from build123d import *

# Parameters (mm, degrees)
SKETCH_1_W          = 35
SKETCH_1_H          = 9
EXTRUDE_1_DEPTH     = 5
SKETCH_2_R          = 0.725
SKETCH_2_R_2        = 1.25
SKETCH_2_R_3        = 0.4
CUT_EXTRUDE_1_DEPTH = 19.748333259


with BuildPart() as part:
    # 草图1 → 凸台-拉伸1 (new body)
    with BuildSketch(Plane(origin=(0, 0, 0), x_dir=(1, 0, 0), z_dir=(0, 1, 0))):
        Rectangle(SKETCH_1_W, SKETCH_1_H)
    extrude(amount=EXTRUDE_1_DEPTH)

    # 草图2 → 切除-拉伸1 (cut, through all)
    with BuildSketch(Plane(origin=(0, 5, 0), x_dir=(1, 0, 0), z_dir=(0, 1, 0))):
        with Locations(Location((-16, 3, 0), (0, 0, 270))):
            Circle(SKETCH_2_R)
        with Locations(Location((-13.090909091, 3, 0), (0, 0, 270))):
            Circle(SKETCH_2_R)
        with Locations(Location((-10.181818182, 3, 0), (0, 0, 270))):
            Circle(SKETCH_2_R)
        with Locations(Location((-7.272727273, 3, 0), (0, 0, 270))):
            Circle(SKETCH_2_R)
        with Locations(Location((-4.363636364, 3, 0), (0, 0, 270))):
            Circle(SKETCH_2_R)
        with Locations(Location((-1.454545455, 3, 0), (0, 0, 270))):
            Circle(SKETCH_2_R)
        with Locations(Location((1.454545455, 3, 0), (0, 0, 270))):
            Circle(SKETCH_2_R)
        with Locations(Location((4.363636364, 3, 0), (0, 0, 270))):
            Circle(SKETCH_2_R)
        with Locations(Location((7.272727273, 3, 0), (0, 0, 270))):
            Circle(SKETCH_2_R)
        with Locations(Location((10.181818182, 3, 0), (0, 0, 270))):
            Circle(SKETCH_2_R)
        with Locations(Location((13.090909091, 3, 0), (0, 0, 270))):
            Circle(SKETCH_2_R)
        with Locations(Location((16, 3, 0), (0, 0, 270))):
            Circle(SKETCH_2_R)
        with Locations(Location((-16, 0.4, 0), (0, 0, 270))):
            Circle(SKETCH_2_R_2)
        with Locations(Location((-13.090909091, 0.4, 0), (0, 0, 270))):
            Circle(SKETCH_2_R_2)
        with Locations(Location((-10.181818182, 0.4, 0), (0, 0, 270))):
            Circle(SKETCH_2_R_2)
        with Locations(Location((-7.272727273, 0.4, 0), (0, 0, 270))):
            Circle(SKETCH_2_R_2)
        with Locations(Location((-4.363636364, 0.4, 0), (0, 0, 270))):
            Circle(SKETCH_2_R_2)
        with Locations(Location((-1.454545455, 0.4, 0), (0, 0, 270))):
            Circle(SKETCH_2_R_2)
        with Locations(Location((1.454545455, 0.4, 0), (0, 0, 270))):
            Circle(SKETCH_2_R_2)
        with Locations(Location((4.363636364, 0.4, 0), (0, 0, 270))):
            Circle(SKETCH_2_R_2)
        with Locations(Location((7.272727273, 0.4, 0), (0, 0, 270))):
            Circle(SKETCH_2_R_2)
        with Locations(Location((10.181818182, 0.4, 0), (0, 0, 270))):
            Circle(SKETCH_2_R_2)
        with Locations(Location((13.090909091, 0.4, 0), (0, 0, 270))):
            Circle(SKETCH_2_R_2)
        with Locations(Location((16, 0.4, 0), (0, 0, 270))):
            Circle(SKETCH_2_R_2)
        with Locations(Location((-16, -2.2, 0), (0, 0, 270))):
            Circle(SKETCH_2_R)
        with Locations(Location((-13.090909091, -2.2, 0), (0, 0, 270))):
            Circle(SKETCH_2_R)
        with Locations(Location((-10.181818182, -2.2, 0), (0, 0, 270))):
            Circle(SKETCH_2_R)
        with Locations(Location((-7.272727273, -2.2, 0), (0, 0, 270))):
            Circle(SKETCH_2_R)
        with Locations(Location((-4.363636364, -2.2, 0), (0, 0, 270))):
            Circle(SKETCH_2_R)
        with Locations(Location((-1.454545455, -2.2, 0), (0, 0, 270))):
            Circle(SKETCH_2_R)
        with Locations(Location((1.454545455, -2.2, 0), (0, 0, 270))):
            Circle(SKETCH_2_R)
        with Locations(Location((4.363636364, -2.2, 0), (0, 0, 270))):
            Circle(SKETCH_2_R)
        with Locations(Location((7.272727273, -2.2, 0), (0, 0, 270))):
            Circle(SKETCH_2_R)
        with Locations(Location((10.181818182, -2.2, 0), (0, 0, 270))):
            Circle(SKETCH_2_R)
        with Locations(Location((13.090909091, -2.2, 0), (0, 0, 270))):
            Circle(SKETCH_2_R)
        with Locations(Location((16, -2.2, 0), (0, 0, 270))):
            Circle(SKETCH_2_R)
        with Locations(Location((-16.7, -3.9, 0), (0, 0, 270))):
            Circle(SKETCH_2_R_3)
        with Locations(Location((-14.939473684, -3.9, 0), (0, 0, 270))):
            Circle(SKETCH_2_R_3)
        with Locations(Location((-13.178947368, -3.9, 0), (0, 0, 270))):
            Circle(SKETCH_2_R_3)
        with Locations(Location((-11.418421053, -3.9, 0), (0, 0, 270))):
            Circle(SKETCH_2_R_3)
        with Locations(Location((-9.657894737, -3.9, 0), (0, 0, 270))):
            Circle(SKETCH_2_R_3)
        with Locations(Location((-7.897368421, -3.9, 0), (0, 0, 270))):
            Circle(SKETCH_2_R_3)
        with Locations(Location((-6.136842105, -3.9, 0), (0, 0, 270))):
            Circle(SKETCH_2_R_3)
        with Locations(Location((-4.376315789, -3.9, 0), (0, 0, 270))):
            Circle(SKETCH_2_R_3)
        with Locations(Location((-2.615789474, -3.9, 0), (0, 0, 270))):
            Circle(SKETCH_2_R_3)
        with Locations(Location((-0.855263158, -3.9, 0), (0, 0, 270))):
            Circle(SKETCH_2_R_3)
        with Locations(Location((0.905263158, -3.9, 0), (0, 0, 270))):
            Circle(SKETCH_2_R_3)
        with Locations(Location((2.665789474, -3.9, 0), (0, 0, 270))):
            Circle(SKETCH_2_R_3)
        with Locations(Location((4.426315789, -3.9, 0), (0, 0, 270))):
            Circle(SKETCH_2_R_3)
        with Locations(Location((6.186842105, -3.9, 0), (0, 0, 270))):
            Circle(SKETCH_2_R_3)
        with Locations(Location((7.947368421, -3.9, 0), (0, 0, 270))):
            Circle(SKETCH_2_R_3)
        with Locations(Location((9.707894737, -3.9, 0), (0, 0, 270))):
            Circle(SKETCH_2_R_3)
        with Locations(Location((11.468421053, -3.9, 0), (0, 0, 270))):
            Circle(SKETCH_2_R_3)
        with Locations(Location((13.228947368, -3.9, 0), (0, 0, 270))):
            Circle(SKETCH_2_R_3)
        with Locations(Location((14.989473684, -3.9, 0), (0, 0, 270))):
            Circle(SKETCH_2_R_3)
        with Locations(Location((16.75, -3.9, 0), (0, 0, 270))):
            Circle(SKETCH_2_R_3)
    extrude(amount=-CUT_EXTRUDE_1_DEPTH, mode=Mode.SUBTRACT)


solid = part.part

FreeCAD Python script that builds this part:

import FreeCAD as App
import Part
import Sketcher


def add_polygon(sketch, points):
    """Adds a closed chain of lines whose ends are joined by coincident constraints."""
    first, n = sketch.GeometryCount, len(points)
    for a, b in zip(points, points[1:] + points[:1]):
        sketch.addGeometry(Part.LineSegment(App.Vector(*a, 0), App.Vector(*b, 0)), False)
    for i in range(n):
        sketch.addConstraint(Sketcher.Constraint("Coincident", first + i, 2, first + (i + 1) % n, 1))

doc = App.newDocument("Part")
body = doc.addObject("PartDesign::Body", "Body")

# Sketch on XZ plane
sketch1 = body.newObject("Sketcher::SketchObject", "Sketch")
sketch1.AttachmentSupport = (doc.getObject("XZ_Plane"), [""])
sketch1.MapMode = "FlatFace"
add_polygon(sketch1, [(-18, -4), (-18, 4), (18, 4), (18, -4)])  # lines 0-3
sketch1.addConstraint([
    Sketcher.Constraint("Vertical", 0),
    Sketcher.Constraint("Horizontal", 1),
    Sketcher.Constraint("Vertical", 2),
    Sketcher.Constraint("Horizontal", 3),
    Sketcher.Constraint("Symmetric", 0, 2, 2, 2, -1, 1),
    Sketcher.Constraint("DistanceX", 1, 1, 1, 2, 35.0),
    Sketcher.Constraint("DistanceY", 0, 1, 0, 2, 9.0),
])
pad1 = body.newObject("PartDesign::Pad", "Pad")
pad1.Profile = sketch1
pad1.Length = 5
pad1.Reversed = True

# Sketch on XZ plane
sketch2 = body.newObject("Sketcher::SketchObject", "Sketch001")
sketch2.AttachmentSupport = (doc.getObject("XZ_Plane"), [""])
sketch2.MapMode = "FlatFace"
sketch2.AttachmentOffset = App.Placement(App.Vector(0, 0, -5), App.Rotation())
sketch2.addGeometry([
    Part.Circle(App.Vector(-16, -3, 0), App.Vector(0, 0, 1), 0.72),  # 0
    Part.Circle(App.Vector(-13.09, -3, 0), App.Vector(0, 0, 1), 0.72),  # 1
    Part.Circle(App.Vector(-10.18, -3, 0), App.Vector(0, 0, 1), 0.72),  # 2
    Part.Circle(App.Vector(-7.27, -3, 0), App.Vector(0, 0, 1), 0.72),  # 3
    Part.Circle(App.Vector(-4.36, -3, 0), App.Vector(0, 0, 1), 0.72),  # 4
    Part.Circle(App.Vector(-1.45, -3, 0), App.Vector(0, 0, 1), 0.72),  # 5
    Part.Circle(App.Vector(1.45, -3, 0), App.Vector(0, 0, 1), 0.72),  # 6
    Part.Circle(App.Vector(4.36, -3, 0), App.Vector(0, 0, 1), 0.72),  # 7
    Part.Circle(App.Vector(7.27, -3, 0), App.Vector(0, 0, 1), 0.72),  # 8
    Part.Circle(App.Vector(10.18, -3, 0), App.Vector(0, 0, 1), 0.72),  # 9
    Part.Circle(App.Vector(13.09, -3, 0), App.Vector(0, 0, 1), 0.72),  # 10
    Part.Circle(App.Vector(16, -3, 0), App.Vector(0, 0, 1), 0.72),  # 11
    Part.Circle(App.Vector(-16, -0.4, 0), App.Vector(0, 0, 1), 1.25),  # 12
    Part.Circle(App.Vector(-13.09, -0.4, 0), App.Vector(0, 0, 1), 1.25),  # 13
    Part.Circle(App.Vector(-10.18, -0.4, 0), App.Vector(0, 0, 1), 1.25),  # 14
    Part.Circle(App.Vector(-7.27, -0.4, 0), App.Vector(0, 0, 1), 1.25),  # 15
    Part.Circle(App.Vector(-4.36, -0.4, 0), App.Vector(0, 0, 1), 1.25),  # 16
    Part.Circle(App.Vector(-1.45, -0.4, 0), App.Vector(0, 0, 1), 1.25),  # 17
    Part.Circle(App.Vector(1.45, -0.4, 0), App.Vector(0, 0, 1), 1.25),  # 18
    Part.Circle(App.Vector(4.36, -0.4, 0), App.Vector(0, 0, 1), 1.25),  # 19
    Part.Circle(App.Vector(7.27, -0.4, 0), App.Vector(0, 0, 1), 1.25),  # 20
    Part.Circle(App.Vector(10.18, -0.4, 0), App.Vector(0, 0, 1), 1.25),  # 21
    Part.Circle(App.Vector(13.09, -0.4, 0), App.Vector(0, 0, 1), 1.25),  # 22
    Part.Circle(App.Vector(16, -0.4, 0), App.Vector(0, 0, 1), 1.25),  # 23
    Part.Circle(App.Vector(-16, 2.2, 0), App.Vector(0, 0, 1), 0.72),  # 24
    Part.Circle(App.Vector(-13.09, 2.2, 0), App.Vector(0, 0, 1), 0.72),  # 25
    Part.Circle(App.Vector(-10.18, 2.2, 0), App.Vector(0, 0, 1), 0.72),  # 26
    Part.Circle(App.Vector(-7.27, 2.2, 0), App.Vector(0, 0, 1), 0.72),  # 27
    Part.Circle(App.Vector(-4.36, 2.2, 0), App.Vector(0, 0, 1), 0.72),  # 28
    Part.Circle(App.Vector(-1.45, 2.2, 0), App.Vector(0, 0, 1), 0.72),  # 29
    Part.Circle(App.Vector(1.45, 2.2, 0), App.Vector(0, 0, 1), 0.72),  # 30
    Part.Circle(App.Vector(4.36, 2.2, 0), App.Vector(0, 0, 1), 0.72),  # 31
    Part.Circle(App.Vector(7.27, 2.2, 0), App.Vector(0, 0, 1), 0.72),  # 32
    Part.Circle(App.Vector(10.18, 2.2, 0), App.Vector(0, 0, 1), 0.72),  # 33
    Part.Circle(App.Vector(13.09, 2.2, 0), App.Vector(0, 0, 1), 0.72),  # 34
    Part.Circle(App.Vector(16, 2.2, 0), App.Vector(0, 0, 1), 0.72),  # 35
    Part.Circle(App.Vector(-16.7, 3.9, 0), App.Vector(0, 0, 1), 0.4),  # 36
    Part.Circle(App.Vector(-14.94, 3.9, 0), App.Vector(0, 0, 1), 0.4),  # 37
    Part.Circle(App.Vector(-13.18, 3.9, 0), App.Vector(0, 0, 1), 0.4),  # 38
    Part.Circle(App.Vector(-11.42, 3.9, 0), App.Vector(0, 0, 1), 0.4),  # 39
    Part.Circle(App.Vector(-9.66, 3.9, 0), App.Vector(0, 0, 1), 0.4),  # 40
    Part.Circle(App.Vector(-7.9, 3.9, 0), App.Vector(0, 0, 1), 0.4),  # 41
    Part.Circle(App.Vector(-6.14, 3.9, 0), App.Vector(0, 0, 1), 0.4),  # 42
    Part.Circle(App.Vector(-4.38, 3.9, 0), App.Vector(0, 0, 1), 0.4),  # 43
    Part.Circle(App.Vector(-2.62, 3.9, 0), App.Vector(0, 0, 1), 0.4),  # 44
    Part.Circle(App.Vector(-0.86, 3.9, 0), App.Vector(0, 0, 1), 0.4),  # 45
    Part.Circle(App.Vector(0.91, 3.9, 0), App.Vector(0, 0, 1), 0.4),  # 46
    Part.Circle(App.Vector(2.67, 3.9, 0), App.Vector(0, 0, 1), 0.4),  # 47
    Part.Circle(App.Vector(4.43, 3.9, 0), App.Vector(0, 0, 1), 0.4),  # 48
    Part.Circle(App.Vector(6.19, 3.9, 0), App.Vector(0, 0, 1), 0.4),  # 49
    Part.Circle(App.Vector(7.95, 3.9, 0), App.Vector(0, 0, 1), 0.4),  # 50
    Part.Circle(App.Vector(9.71, 3.9, 0), App.Vector(0, 0, 1), 0.4),  # 51
    Part.Circle(App.Vector(11.47, 3.9, 0), App.Vector(0, 0, 1), 0.4),  # 52
    Part.Circle(App.Vector(13.23, 3.9, 0), App.Vector(0, 0, 1), 0.4),  # 53
    Part.Circle(App.Vector(14.99, 3.9, 0), App.Vector(0, 0, 1), 0.4),  # 54
    Part.Circle(App.Vector(16.75, 3.9, 0), App.Vector(0, 0, 1), 0.4),  # 55
], False)
sketch2.addConstraint([
    Sketcher.Constraint("Equal", 0, 1),
    Sketcher.Constraint("Equal", 1, 2),
    Sketcher.Constraint("Equal", 2, 3),
    Sketcher.Constraint("Equal", 3, 4),
    Sketcher.Constraint("Equal", 4, 5),
    Sketcher.Constraint("Equal", 5, 6),
    Sketcher.Constraint("Equal", 6, 7),
    Sketcher.Constraint("Equal", 7, 8),
    Sketcher.Constraint("Equal", 8, 9),
    Sketcher.Constraint("Equal", 9, 10),
    Sketcher.Constraint("Equal", 10, 11),
    Sketcher.Constraint("Equal", 12, 13),
    Sketcher.Constraint("Equal", 13, 14),
    Sketcher.Constraint("Equal", 14, 15),
    Sketcher.Constraint("Equal", 15, 16),
    Sketcher.Constraint("Equal", 16, 17),
    Sketcher.Constraint("Equal", 17, 18),
    Sketcher.Constraint("Equal", 18, 19),
    Sketcher.Constraint("Equal", 19, 20),
    Sketcher.Constraint("Equal", 20, 21),
    Sketcher.Constraint("Equal", 21, 22),
    Sketcher.Constraint("Equal", 22, 23),
    Sketcher.Constraint("Equal", 11, 24),
    Sketcher.Constraint("Equal", 24, 25),
    Sketcher.Constraint("Equal", 25, 26),
    Sketcher.Constraint("Equal", 26, 27),
    Sketcher.Constraint("Equal", 27, 28),
    Sketcher.Constraint("Equal", 28, 29),
    Sketcher.Constraint("Equal", 29, 30),
    Sketcher.Constraint("Equal", 30, 31),
    Sketcher.Constraint("Equal", 31, 32),
    Sketcher.Constraint("Equal", 32, 33),
    Sketcher.Constraint("Equal", 33, 34),
    Sketcher.Constraint("Equal", 34, 35),
    Sketcher.Constraint("Equal", 36, 37),
    Sketcher.Constraint("Equal", 37, 38),
    Sketcher.Constraint("Equal", 38, 39),
    Sketcher.Constraint("Equal", 39, 40),
    Sketcher.Constraint("Equal", 40, 41),
    Sketcher.Constraint("Equal", 41, 42),
    Sketcher.Constraint("Equal", 42, 43),
    Sketcher.Constraint("Equal", 43, 44),
    Sketcher.Constraint("Equal", 44, 45),
    Sketcher.Constraint("Equal", 45, 46),
    Sketcher.Constraint("Equal", 46, 47),
    Sketcher.Constraint("Equal", 47, 48),
    Sketcher.Constraint("Equal", 48, 49),
    Sketcher.Constraint("Equal", 49, 50),
    Sketcher.Constraint("Equal", 50, 51),
    Sketcher.Constraint("Equal", 51, 52),
    Sketcher.Constraint("Equal", 52, 53),
    Sketcher.Constraint("Equal", 53, 54),
    Sketcher.Constraint("Equal", 54, 55),
    Sketcher.Constraint("Symmetric", 5, 3, 6, 3, -2),
    Sketcher.Constraint("Symmetric", 4, 3, 7, 3, -2),
    Sketcher.Constraint("Symmetric", 3, 3, 8, 3, -2),
    Sketcher.Constraint("Symmetric", 2, 3, 9, 3, -2),
    Sketcher.Constraint("Symmetric", 1, 3, 10, 3, -2),
    Sketcher.Constraint("Symmetric", 0, 3, 11, 3, -2),
    Sketcher.Constraint("Symmetric", 17, 3, 18, 3, -2),
    Sketcher.Constraint("Symmetric", 16, 3, 19, 3, -2),
    Sketcher.Constraint("Symmetric", 15, 3, 20, 3, -2),
    Sketcher.Constraint("Symmetric", 14, 3, 21, 3, -2),
    Sketcher.Constraint("Symmetric", 13, 3, 22, 3, -2),
    Sketcher.Constraint("Symmetric", 12, 3, 23, 3, -2),
    Sketcher.Constraint("Symmetric", 29, 3, 30, 3, -2),
    Sketcher.Constraint("Symmetric", 28, 3, 31, 3, -2),
    Sketcher.Constraint("Symmetric", 27, 3, 32, 3, -2),
    Sketcher.Constraint("Symmetric", 26, 3, 33, 3, -2),
    Sketcher.Constraint("Symmetric", 25, 3, 34, 3, -2),
    Sketcher.Constraint("Symmetric", 24, 3, 35, 3, -2),
    Sketcher.Constraint("Horizontal", 0, 3, 1, 3),
    Sketcher.Constraint("Horizontal", 1, 3, 2, 3),
    Sketcher.Constraint("Horizontal", 2, 3, 3, 3),
    Sketcher.Constraint("Horizontal", 3, 3, 4, 3),
    Sketcher.Constraint("Horizontal", 4, 3, 5, 3),
    Sketcher.Constraint("Horizontal", 12, 3, 13, 3),
    Sketcher.Constraint("Horizontal", 13, 3, 14, 3),
    Sketcher.Constraint("Horizontal", 14, 3, 15, 3),
    Sketcher.Constraint("Horizontal", 15, 3, 16, 3),
    Sketcher.Constraint("Horizontal", 16, 3, 17, 3),
    Sketcher.Constraint("Horizontal", 24, 3, 25, 3),
    Sketcher.Constraint("Horizontal", 25, 3, 26, 3),
    Sketcher.Constraint("Horizontal", 26, 3, 27, 3),
    Sketcher.Constraint("Horizontal", 27, 3, 28, 3),
    Sketcher.Constraint("Horizontal", 28, 3, 29, 3),
    Sketcher.Constraint("Horizontal", 36, 3, 37, 3),
    Sketcher.Constraint("Horizontal", 37, 3, 38, 3),
    Sketcher.Constraint("Horizontal", 38, 3, 39, 3),
    Sketcher.Constraint("Horizontal", 39, 3, 40, 3),
    Sketcher.Constraint("Horizontal", 40, 3, 41, 3),
    Sketcher.Constraint("Horizontal", 41, 3, 42, 3),
    Sketcher.Constraint("Horizontal", 42, 3, 43, 3),
    Sketcher.Constraint("Horizontal", 43, 3, 44, 3),
    Sketcher.Constraint("Horizontal", 44, 3, 45, 3),
    Sketcher.Constraint("Horizontal", 45, 3, 46, 3),
    Sketcher.Constraint("Horizontal", 46, 3, 47, 3),
    Sketcher.Constraint("Horizontal", 47, 3, 48, 3),
    Sketcher.Constraint("Horizontal", 48, 3, 49, 3),
    Sketcher.Constraint("Horizontal", 49, 3, 50, 3),
    Sketcher.Constraint("Horizontal", 50, 3, 51, 3),
    Sketcher.Constraint("Horizontal", 51, 3, 52, 3),
    Sketcher.Constraint("Horizontal", 52, 3, 53, 3),
    Sketcher.Constraint("Horizontal", 53, 3, 54, 3),
    Sketcher.Constraint("Horizontal", 54, 3, 55, 3),
    Sketcher.Constraint("Vertical", 0, 3, 12, 3),
    Sketcher.Constraint("Vertical", 1, 3, 13, 3),
    Sketcher.Constraint("Vertical", 2, 3, 14, 3),
    Sketcher.Constraint("Vertical", 3, 3, 15, 3),
    Sketcher.Constraint("Vertical", 4, 3, 16, 3),
    Sketcher.Constraint("Vertical", 5, 3, 17, 3),
    Sketcher.Constraint("Vertical", 12, 3, 24, 3),
    Sketcher.Constraint("Vertical", 13, 3, 25, 3),
    Sketcher.Constraint("Vertical", 14, 3, 26, 3),
    Sketcher.Constraint("Vertical", 15, 3, 27, 3),
    Sketcher.Constraint("Vertical", 16, 3, 28, 3),
    Sketcher.Constraint("Vertical", 17, 3, 29, 3),
    Sketcher.Constraint("Diameter", 12, 2.5),
    Sketcher.Constraint("Diameter", 36, 0.8),
    Sketcher.Constraint("Diameter", 0, 1.45),
    Sketcher.Constraint("DistanceX", 0, 3, -1, 1, 16.0),
    Sketcher.Constraint("DistanceY", 0, 3, -1, 1, 3.0),
    Sketcher.Constraint("DistanceY", 12, 3, -1, 1, 0.4),
    Sketcher.Constraint("DistanceY", -1, 1, 24, 3, 2.2),
    Sketcher.Constraint("DistanceX", 36, 3, -1, 1, 16.7),
    Sketcher.Constraint("DistanceY", -1, 1, 36, 3, 3.9),
    Sketcher.Constraint("DistanceX", -1, 1, 55, 3, 16.75),
    Sketcher.Constraint("DistanceX", 1, 3, -1, 1, 13.090909),
    Sketcher.Constraint("DistanceX", 2, 3, -1, 1, 10.181818),
    Sketcher.Constraint("DistanceX", 39, 3, -1, 1, 11.418421),
    Sketcher.Constraint("DistanceX", 41, 3, -1, 1, 7.897368),
    Sketcher.Constraint("DistanceX", 44, 3, -1, 1, 2.615789),
    Sketcher.Constraint("DistanceX", -1, 1, 47, 3, 2.665789),
    Sketcher.Constraint("DistanceX", -1, 1, 50, 3, 7.947368),
    Sketcher.Constraint("DistanceX", -1, 1, 52, 3, 11.468421),
    Sketcher.Constraint("DistanceX", 2, 3, 3, 3, 2.909091),
    Sketcher.Constraint("DistanceX", 3, 3, 4, 3, 2.909091),
    Sketcher.Constraint("DistanceX", 4, 3, 5, 3, 2.909091),
    Sketcher.Constraint("DistanceX", 38, 3, 25, 3, 0.088038),
    Sketcher.Constraint("DistanceX", 43, 3, 28, 3, 0.012679),
    Sketcher.Constraint("DistanceX", 45, 3, 30, 3, 2.309809),
    Sketcher.Constraint("DistanceX", 29, 3, 46, 3, 2.359809),
    Sketcher.Constraint("DistanceX", 31, 3, 48, 3, 0.062679),
    Sketcher.Constraint("DistanceX", 34, 3, 53, 3, 0.138038),
    Sketcher.Constraint("DistanceX", 37, 3, -1, 1, 14.939474),
    Sketcher.Constraint("DistanceX", 40, 3, -1, 1, 9.657895),
    Sketcher.Constraint("DistanceX", 42, 3, -1, 1, 6.136842),
    Sketcher.Constraint("DistanceX", -1, 1, 49, 3, 6.186842),
    Sketcher.Constraint("DistanceX", -1, 1, 51, 3, 9.707895),
    Sketcher.Constraint("DistanceX", -1, 1, 54, 3, 14.989474),
])
pocket1 = body.newObject("PartDesign::Pocket", "Pocket")
pocket1.Profile = sketch2
pocket1.Type = "ThroughAll"
pocket1.Reversed = True

doc.recompute()
